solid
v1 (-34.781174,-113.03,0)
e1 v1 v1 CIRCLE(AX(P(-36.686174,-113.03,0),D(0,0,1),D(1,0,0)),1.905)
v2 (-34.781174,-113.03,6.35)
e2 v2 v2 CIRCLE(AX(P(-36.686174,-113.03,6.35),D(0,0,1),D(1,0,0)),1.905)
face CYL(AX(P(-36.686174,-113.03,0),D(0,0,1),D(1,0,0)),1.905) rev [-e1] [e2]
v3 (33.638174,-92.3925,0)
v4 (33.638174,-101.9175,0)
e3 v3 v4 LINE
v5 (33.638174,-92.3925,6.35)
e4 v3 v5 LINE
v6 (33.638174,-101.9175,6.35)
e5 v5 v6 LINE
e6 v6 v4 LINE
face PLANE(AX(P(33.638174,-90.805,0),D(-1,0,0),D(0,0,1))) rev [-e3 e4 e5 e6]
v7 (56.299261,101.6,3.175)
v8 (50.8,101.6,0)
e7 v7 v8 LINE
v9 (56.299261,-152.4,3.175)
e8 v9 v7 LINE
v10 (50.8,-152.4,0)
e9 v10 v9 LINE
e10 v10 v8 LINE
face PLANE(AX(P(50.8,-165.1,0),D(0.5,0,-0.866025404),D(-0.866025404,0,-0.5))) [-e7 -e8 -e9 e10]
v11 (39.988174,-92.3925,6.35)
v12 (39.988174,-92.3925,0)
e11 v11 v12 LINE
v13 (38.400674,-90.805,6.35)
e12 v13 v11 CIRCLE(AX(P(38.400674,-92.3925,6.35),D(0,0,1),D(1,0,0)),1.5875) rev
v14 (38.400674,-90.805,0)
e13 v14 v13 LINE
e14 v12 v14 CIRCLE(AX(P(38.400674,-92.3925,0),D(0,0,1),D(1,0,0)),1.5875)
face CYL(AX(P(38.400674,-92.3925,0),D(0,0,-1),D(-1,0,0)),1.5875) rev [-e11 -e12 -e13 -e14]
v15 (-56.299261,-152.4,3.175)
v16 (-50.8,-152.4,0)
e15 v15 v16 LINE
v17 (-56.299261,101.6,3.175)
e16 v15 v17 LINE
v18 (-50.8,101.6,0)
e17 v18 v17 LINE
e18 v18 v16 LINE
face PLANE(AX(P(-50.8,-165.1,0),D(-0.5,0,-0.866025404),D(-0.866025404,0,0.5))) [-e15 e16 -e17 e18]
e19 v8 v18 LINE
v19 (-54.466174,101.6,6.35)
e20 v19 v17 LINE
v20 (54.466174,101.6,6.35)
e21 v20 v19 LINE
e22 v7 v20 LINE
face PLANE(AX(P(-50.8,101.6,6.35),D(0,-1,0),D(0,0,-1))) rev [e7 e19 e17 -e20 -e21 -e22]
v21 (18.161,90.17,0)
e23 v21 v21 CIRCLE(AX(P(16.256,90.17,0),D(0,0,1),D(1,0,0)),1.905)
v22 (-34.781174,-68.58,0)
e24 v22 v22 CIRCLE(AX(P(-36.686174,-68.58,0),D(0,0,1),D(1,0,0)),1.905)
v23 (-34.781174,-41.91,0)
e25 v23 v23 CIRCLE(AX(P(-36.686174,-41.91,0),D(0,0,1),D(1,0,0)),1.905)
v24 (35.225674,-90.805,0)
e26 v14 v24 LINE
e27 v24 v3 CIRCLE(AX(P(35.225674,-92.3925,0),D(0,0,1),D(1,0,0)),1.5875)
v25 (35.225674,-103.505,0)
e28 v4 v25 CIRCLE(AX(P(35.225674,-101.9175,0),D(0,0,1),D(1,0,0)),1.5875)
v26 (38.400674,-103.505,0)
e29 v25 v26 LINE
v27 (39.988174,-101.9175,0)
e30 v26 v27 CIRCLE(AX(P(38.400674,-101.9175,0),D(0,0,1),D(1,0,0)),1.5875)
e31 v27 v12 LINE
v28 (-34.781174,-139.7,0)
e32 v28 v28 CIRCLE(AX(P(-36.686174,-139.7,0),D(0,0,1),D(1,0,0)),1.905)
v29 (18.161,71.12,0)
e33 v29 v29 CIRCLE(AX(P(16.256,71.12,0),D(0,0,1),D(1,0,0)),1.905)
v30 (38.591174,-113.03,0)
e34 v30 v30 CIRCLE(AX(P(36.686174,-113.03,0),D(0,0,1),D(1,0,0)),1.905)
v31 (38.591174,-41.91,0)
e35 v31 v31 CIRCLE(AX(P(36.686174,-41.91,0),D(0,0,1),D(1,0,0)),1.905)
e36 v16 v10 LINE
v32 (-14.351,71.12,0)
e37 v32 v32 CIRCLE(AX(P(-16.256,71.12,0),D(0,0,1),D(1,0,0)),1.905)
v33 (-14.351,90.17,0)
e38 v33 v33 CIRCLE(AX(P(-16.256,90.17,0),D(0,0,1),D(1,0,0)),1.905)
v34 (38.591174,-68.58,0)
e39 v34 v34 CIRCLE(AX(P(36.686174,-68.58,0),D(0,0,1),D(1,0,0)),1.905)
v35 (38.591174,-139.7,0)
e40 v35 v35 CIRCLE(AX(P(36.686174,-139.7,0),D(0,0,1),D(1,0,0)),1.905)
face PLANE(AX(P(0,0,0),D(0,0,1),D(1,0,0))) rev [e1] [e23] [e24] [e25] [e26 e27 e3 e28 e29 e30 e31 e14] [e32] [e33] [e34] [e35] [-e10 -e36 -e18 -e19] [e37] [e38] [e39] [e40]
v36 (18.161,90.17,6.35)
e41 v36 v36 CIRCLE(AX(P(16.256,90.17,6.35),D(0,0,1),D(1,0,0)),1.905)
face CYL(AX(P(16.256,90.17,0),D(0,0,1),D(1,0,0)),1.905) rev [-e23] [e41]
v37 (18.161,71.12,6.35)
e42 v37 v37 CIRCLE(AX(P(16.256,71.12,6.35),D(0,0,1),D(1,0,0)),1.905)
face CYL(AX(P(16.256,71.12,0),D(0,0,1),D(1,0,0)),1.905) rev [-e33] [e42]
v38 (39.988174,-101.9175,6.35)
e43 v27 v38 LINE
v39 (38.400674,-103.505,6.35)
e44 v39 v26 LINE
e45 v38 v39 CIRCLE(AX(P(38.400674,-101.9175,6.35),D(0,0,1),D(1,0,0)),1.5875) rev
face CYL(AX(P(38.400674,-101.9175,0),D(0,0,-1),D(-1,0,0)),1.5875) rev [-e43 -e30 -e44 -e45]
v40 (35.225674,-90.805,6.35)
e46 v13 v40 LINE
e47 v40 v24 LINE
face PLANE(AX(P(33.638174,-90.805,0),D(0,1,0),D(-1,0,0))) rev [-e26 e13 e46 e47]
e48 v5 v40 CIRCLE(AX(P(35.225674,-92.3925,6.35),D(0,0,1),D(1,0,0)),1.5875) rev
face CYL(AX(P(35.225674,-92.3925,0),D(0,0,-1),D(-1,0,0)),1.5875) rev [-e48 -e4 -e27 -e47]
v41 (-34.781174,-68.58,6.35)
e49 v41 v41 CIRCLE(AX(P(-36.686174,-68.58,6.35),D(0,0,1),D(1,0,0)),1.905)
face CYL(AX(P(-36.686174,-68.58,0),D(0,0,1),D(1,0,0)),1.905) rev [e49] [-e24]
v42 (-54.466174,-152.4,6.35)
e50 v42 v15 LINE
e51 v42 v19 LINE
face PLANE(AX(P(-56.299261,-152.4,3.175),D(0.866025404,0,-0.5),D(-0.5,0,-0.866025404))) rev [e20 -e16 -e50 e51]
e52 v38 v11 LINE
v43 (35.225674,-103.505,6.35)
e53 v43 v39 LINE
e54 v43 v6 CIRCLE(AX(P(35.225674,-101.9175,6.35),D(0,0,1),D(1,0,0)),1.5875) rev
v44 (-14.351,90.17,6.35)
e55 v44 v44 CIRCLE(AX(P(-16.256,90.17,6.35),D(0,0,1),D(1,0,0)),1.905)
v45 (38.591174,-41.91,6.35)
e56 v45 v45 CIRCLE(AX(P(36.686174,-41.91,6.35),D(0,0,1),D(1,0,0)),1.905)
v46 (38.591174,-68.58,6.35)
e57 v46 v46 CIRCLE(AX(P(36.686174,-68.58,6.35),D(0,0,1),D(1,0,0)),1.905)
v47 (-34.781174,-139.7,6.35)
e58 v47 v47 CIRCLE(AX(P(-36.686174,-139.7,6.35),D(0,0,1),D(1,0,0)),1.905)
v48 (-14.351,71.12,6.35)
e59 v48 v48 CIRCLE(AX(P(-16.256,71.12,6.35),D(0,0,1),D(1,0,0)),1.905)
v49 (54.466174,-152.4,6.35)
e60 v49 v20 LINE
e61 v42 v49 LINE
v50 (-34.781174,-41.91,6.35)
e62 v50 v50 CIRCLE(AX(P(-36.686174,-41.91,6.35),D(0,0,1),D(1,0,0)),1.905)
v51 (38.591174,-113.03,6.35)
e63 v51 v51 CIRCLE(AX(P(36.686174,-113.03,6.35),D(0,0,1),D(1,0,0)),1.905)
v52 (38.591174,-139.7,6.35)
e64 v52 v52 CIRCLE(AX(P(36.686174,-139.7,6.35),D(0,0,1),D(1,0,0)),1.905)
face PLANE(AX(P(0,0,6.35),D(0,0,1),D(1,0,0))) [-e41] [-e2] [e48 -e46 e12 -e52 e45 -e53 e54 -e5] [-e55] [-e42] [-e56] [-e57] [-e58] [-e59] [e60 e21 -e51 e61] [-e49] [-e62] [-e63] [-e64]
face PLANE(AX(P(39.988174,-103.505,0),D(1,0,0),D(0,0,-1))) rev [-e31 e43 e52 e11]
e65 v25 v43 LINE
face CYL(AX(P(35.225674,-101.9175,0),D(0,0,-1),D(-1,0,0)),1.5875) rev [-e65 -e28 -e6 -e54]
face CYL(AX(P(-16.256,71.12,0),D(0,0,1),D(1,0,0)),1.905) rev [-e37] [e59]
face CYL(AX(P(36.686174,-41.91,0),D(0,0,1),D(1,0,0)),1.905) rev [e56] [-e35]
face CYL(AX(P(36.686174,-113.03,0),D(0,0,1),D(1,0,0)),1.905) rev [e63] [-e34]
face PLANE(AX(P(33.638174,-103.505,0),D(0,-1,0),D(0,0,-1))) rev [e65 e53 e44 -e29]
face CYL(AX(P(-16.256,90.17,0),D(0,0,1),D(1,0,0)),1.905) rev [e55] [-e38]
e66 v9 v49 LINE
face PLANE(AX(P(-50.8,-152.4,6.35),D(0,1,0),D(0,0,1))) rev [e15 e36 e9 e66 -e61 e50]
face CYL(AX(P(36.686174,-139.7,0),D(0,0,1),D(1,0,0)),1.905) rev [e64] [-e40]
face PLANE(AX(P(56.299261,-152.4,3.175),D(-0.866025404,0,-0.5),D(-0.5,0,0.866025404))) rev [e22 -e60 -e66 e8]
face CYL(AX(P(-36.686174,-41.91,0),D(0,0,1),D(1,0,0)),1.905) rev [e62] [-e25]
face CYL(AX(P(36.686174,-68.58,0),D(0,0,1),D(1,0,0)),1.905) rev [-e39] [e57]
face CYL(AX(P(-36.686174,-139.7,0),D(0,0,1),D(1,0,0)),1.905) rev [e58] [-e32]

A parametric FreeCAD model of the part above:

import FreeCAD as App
import Part
import Sketcher

V = App.Vector
Q = App.Units.Quantity


def edges_at(feature, points):
    """Names of the edges that pass closest to the given points."""
    edges = feature.Shape.Edges
    near = lambda p: min(range(len(edges)), key=lambda i: edges[i].distToShape(Part.Vertex(*p))[0])
    return sorted({f"Edge{near(p) + 1}" for p in points})

doc = App.newDocument("Part")
body = doc.addObject("PartDesign::Body", "Body")

sketch1 = body.newObject("Sketcher::SketchObject", "Sketch")
sketch1.AttachmentSupport = (doc.getObject("XY_Plane"), [""])
sketch1.MapMode = "FlatFace"
sketch1.addGeometry([
    Part.LineSegment(V(-51, 102, 0), V(-51, -152, 0)),
    Part.LineSegment(V(-51, -152, 0), V(51, -152, 0)),
    Part.LineSegment(V(51, -152, 0), V(51, 102, 0)),
    Part.LineSegment(V(51, 102, 0), V(-51, 102, 0)),
], False)
sketch1.addConstraint([
    Sketcher.Constraint("Coincident", 0, 2, 1, 1),
    Sketcher.Constraint("Coincident", 1, 2, 2, 1),
    Sketcher.Constraint("Coincident", 2, 2, 3, 1),
    Sketcher.Constraint("Coincident", 3, 2, 0, 1),
    Sketcher.Constraint("Vertical", 0),
    Sketcher.Constraint("Horizontal", 1),
    Sketcher.Constraint("Vertical", 2),
    Sketcher.Constraint("Horizontal", 3),
    Sketcher.Constraint("DistanceX", 1, 1, 1, 2, Q("4 in")),
    Sketcher.Constraint("DistanceY", 0, 2, 0, 1, Q("10 in")),
    Sketcher.Constraint("DistanceX", 0, 2, -1, 1, Q("2 in")),
    Sketcher.Constraint("DistanceY", 0, 2, -1, 1, Q("6 in")),
])
pad1 = body.newObject("PartDesign::Pad", "Pad")
pad1.Profile = sketch1
pad1.Length = Q("0.25 in")

sketch2 = body.newObject("Sketcher::SketchObject", "Sketch001")
sketch2.AttachmentSupport = (doc.getObject("XZ_Plane"), [""])
sketch2.MapMode = "FlatFace"
sketch2.AttachmentOffset = App.Placement(V(0, 0, -4 * 25.4), App.Rotation())
sketch2.addGeometry([
    Part.LineSegment(V(-51, 0, 0), V(-62, 6, 0)),
    Part.LineSegment(V(-62, 6, 0), V(-51, 6, 0)),
    Part.LineSegment(V(-51, 6, 0), V(-51, 0, 0)),
    Part.LineSegment(V(51, 6, 0), V(62, 6, 0)),
    Part.LineSegment(V(62, 6, 0), V(51, 0, 0)),
    Part.LineSegment(V(51, 0, 0), V(51, 6, 0)),
], False)
sketch2.addConstraint([
    Sketcher.Constraint("Coincident", 0, 2, 1, 1),
    Sketcher.Constraint("Coincident", 1, 2, 2, 1),
    Sketcher.Constraint("Coincident", 2, 2, 0, 1),
    Sketcher.Constraint("Coincident", 3, 2, 4, 1),
    Sketcher.Constraint("Coincident", 4, 2, 5, 1),
    Sketcher.Constraint("Coincident", 5, 2, 3, 1),
    Sketcher.Constraint("Horizontal", 1),
    Sketcher.Constraint("Vertical", 2),
    Sketcher.Constraint("Horizontal", 3),
    Sketcher.Constraint("Vertical", 5),
    Sketcher.Constraint("Symmetric", 2, 2, 4, 2, -1, 1),
    Sketcher.Constraint("Symmetric", 0, 2, 3, 2, -2),
    Sketcher.Constraint("PointOnObject", 2, 2, -1),
    Sketcher.Constraint("DistanceX", 1, 2, -1, 1, Q("2 in")),
    Sketcher.Constraint("Angle", 0, Q("150 deg")),
    Sketcher.Constraint("Distance", 0, Q("0.5 in")),
])
pad2 = body.newObject("PartDesign::Pad", "Pad001")
pad2.Profile = sketch2
pad2.Length = Q("10 in")

sketch3 = body.newObject("Sketcher::SketchObject", "Sketch002")
sketch3.AttachmentSupport = (doc.getObject("XZ_Plane"), [""])
sketch3.MapMode = "FlatFace"
sketch3.AttachmentOffset = App.Placement(V(0, 0, -4 * 25.4), App.Rotation())
sketch3.addGeometry([
    Part.LineSegment(V(56.3, 3.2, 0), V(54.5, 6.3, 0)),
    Part.LineSegment(V(54.5, 6.3, 0), V(61.8, 6.3, 0)),
    Part.LineSegment(V(61.8, 6.3, 0), V(56.3, 3.2, 0)),
    Part.LineSegment(V(-61.8, 6.3, 0), V(-54.5, 6.3, 0)),
    Part.LineSegment(V(-54.5, 6.3, 0), V(-56.3, 3.2, 0)),
    Part.LineSegment(V(-56.3, 3.2, 0), V(-61.8, 6.3, 0)),
], False)
sketch3.addConstraint([
    Sketcher.Constraint("Coincident", 0, 2, 1, 1),
    Sketcher.Constraint("Coincident", 1, 2, 2, 1),
    Sketcher.Constraint("Coincident", 2, 2, 0, 1),
    Sketcher.Constraint("Coincident", 3, 2, 4, 1),
    Sketcher.Constraint("Coincident", 4, 2, 5, 1),
    Sketcher.Constraint("Coincident", 5, 2, 3, 1),
    Sketcher.Constraint("Horizontal", 1),
    Sketcher.Constraint("Horizontal", 3),
    Sketcher.Constraint("Symmetric", 0, 2, 3, 2, -2),
    Sketcher.Constraint("Symmetric", 2, 2, 4, 2, -2),
    Sketcher.Constraint("Perpendicular", 0, 2),
    Sketcher.Constraint("Perpendicular", 4, 5),
    Sketcher.Constraint("Angle", 0, Q("120 deg")),
    Sketcher.Constraint("Distance", 2, Q("0.25 in")),
    Sketcher.Constraint("DistanceY", -1, 1, 0, 2, Q("0.25 in")),
    Sketcher.Constraint("DistanceX", -1, 1, 2, 2, Q("56.299261 mm")),
])
pocket1 = body.newObject("PartDesign::Pocket", "Pocket")
pocket1.Profile = sketch3
pocket1.Type = "ThroughAll"
pocket1.Reversed = True

sketch4 = body.newObject("Sketcher::SketchObject", "Sketch003")
sketch4.AttachmentSupport = (doc.getObject("XY_Plane"), [""])
sketch4.MapMode = "FlatFace"
sketch4.AttachmentOffset = App.Placement(V(0, 0, 0.25 * 25.4), App.Rotation())
sketch4.addGeometry([
    Part.Circle(V(-36.7, -41.9, 0), V(0, 0, 1), 1.9),
    Part.Circle(V(36.7, -41.9, 0), V(0, 0, 1), 1.9),
    Part.Circle(V(36.7, -68.6, 0), V(0, 0, 1), 1.9),
    Part.Circle(V(36.7, -113, 0), V(0, 0, 1), 1.9),
    Part.Circle(V(36.7, -139.7, 0), V(0, 0, 1), 1.9),
    Part.Circle(V(-36.7, -139.7, 0), V(0, 0, 1), 1.9),
    Part.Circle(V(-36.7, -113, 0), V(0, 0, 1), 1.9),
    Part.Circle(V(-36.7, -68.6, 0), V(0, 0, 1), 1.9),
], False)
sketch4.addConstraint([
    Sketcher.Constraint("Equal", 0, 1),
    Sketcher.Constraint("Equal", 1, 2),
    Sketcher.Constraint("Equal", 2, 3),
    Sketcher.Constraint("Equal", 3, 4),
    Sketcher.Constraint("Equal", 4, 5),
    Sketcher.Constraint("Equal", 5, 6),
    Sketcher.Constraint("Equal", 6, 7),
    Sketcher.Constraint("Symmetric", 0, 3, 1, 3, -2),
    Sketcher.Constraint("Symmetric", 4, 3, 5, 3, -2),
    Sketcher.Constraint("Symmetric", 3, 3, 6, 3, -2),
    Sketcher.Constraint("Symmetric", 2, 3, 7, 3, -2),
    Sketcher.Constraint("Vertical", 1, 3, 2, 3),
    Sketcher.Constraint("Vertical", 2, 3, 3, 3),
    Sketcher.Constraint("Vertical", 3, 3, 4, 3),
    Sketcher.Constraint("Diameter", 0, Q("0.15 in")),
    Sketcher.Constraint("DistanceY", 2, 3, -1, 1, Q("2.7 in")),
    Sketcher.Constraint("DistanceY", 4, 3, -1, 1, Q("5.5 in")),
    Sketcher.Constraint("DistanceY", 3, 3, 1, 3, Q("2.8 in")),
    Sketcher.Constraint("DistanceY", 0, 3, -1, 1, Q("1.65 in")),
    Sketcher.Constraint("DistanceX", 0, 3, 1, 3, Q("73.372348 mm")),
])
pocket2 = body.newObject("PartDesign::Pocket", "Pocket001")
pocket2.Profile = sketch4
pocket2.Type = "ThroughAll"

sketch5 = body.newObject("Sketcher::SketchObject", "Sketch004")
sketch5.AttachmentSupport = (doc.getObject("XY_Plane"), [""])
sketch5.MapMode = "FlatFace"
sketch5.AttachmentOffset = App.Placement(V(0, 0, 0.25 * 25.4), App.Rotation())
sketch5.addGeometry([
    Part.Circle(V(-16.3, 90.2, 0), V(0, 0, 1), 1.9),
    Part.Circle(V(16.3, 90.2, 0), V(0, 0, 1), 1.9),
    Part.Circle(V(16.3, 71.1, 0), V(0, 0, 1), 1.9),
    Part.Circle(V(-16.3, 71.1, 0), V(0, 0, 1), 1.9),
], False)
sketch5.addConstraint([
    Sketcher.Constraint("Equal", 0, 1),
    Sketcher.Constraint("Equal", 1, 2),
    Sketcher.Constraint("Equal", 2, 3),
    Sketcher.Constraint("Symmetric", 0, 3, 1, 3, -2),
    Sketcher.Constraint("Symmetric", 2, 3, 3, 3, -2),
    Sketcher.Constraint("Vertical", 1, 3, 2, 3),
    Sketcher.Constraint("Diameter", 0, Q("0.15 in")),
    Sketcher.Constraint("DistanceY", -1, 1, 2, 3, Q("2.8 in")),
    Sketcher.Constraint("DistanceX", 0, 3, -1, 1, Q("0.64 in")),
    Sketcher.Constraint("DistanceY", -1, 1, 0, 3, Q("3.55 in")),
])
pocket3 = body.newObject("PartDesign::Pocket", "Pocket002")
pocket3.Profile = sketch5
pocket3.Type = "ThroughAll"

sketch6 = body.newObject("Sketcher::SketchObject", "Sketch005")
sketch6.AttachmentSupport = (doc.getObject("XY_Plane"), [""])
sketch6.MapMode = "FlatFace"
sketch6.AttachmentOffset = App.Placement(V(0, 0, 0.25 * 25.4), App.Rotation())
sketch6.addGeometry([
    Part.LineSegment(V(34, -91, 0), V(34, -104, 0)),
    Part.LineSegment(V(34, -104, 0), V(40, -104, 0)),
    Part.LineSegment(V(40, -104, 0), V(40, -91, 0)),
    Part.LineSegment(V(40, -91, 0), V(34, -91, 0)),
], False)
sketch6.addConstraint([
    Sketcher.Constraint("Coincident", 0, 2, 1, 1),
    Sketcher.Constraint("Coincident", 1, 2, 2, 1),
    Sketcher.Constraint("Coincident", 2, 2, 3, 1),
    Sketcher.Constraint("Coincident", 3, 2, 0, 1),
    Sketcher.Constraint("Vertical", 0),
    Sketcher.Constraint("Horizontal", 1),
    Sketcher.Constraint("Vertical", 2),
    Sketcher.Constraint("Horizontal", 3),
    Sketcher.Constraint("DistanceY", 0, 2, 0, 1, Q("0.5 in")),
    Sketcher.Constraint("DistanceX", 1, 1, 1, 2, Q("0.25 in")),
    Sketcher.Constraint("DistanceY", 0, 2, -1, 1, Q("4.075 in")),
    Sketcher.Constraint("DistanceX", -1, 1, 0, 2, Q("33.638174 mm")),
])
pocket4 = body.newObject("PartDesign::Pocket", "Pocket003")
pocket4.Profile = sketch6
pocket4.Type = "ThroughAll"
doc.recompute()

fillet = body.newObject("PartDesign::Fillet", "Fillet")
fillet.Base = (pocket4, edges_at(pocket4, [
    (33.638, -90.805, 3.175),
    (39.988, -90.805, 3.175),
    (39.988, -103.505, 3.175),
    (33.638, -103.505, 3.175),
]))
fillet.Radius = Q("0.0625 in")

doc.recompute()
